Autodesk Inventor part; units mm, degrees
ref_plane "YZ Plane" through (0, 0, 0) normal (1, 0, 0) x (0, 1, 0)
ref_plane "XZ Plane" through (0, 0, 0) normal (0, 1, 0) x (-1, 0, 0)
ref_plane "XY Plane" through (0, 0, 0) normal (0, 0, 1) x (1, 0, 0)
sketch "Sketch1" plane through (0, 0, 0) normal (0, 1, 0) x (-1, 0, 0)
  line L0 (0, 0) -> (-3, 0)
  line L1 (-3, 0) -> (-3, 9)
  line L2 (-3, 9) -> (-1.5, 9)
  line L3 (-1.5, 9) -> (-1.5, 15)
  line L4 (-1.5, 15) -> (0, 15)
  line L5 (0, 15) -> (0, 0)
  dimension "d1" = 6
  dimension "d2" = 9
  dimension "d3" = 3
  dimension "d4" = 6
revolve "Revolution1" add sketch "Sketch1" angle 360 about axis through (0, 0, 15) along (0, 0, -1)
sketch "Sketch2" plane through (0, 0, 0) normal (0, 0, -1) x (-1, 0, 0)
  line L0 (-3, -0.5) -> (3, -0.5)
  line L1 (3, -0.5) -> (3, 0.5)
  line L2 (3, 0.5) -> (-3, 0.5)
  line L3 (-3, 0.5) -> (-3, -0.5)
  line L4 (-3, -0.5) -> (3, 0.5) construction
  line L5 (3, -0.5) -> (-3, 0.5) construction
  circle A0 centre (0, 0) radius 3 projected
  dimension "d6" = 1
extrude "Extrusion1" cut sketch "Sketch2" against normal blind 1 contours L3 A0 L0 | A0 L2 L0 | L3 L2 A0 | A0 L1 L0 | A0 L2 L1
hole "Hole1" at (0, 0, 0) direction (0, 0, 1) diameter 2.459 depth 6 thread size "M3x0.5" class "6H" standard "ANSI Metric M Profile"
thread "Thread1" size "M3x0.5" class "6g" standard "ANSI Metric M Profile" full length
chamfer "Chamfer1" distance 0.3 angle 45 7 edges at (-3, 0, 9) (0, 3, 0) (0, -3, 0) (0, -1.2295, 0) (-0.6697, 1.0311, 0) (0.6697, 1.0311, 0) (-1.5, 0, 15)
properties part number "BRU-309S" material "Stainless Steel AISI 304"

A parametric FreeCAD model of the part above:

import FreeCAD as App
import Part
import Sketcher

V = App.Vector


def edges_at(feature, points):
    """Names of the edges that pass closest to the given points."""
    edges = feature.Shape.Edges
    near = lambda p: min(range(len(edges)), key=lambda i: edges[i].distToShape(Part.Vertex(*p))[0])
    return sorted({f"Edge{near(p) + 1}" for p in points})


def add_polygon(sketch, points):
    """Adds a closed chain of lines whose ends are joined by coincident constraints."""
    first, n = sketch.GeometryCount, len(points)
    for a, b in zip(points, points[1:] + points[:1]):
        sketch.addGeometry(Part.LineSegment(App.Vector(*a, 0), App.Vector(*b, 0)), False)
    for i in range(n):
        sketch.addConstraint(Sketcher.Constraint("Coincident", first + i, 2, first + (i + 1) % n, 1))

doc = App.newDocument("Part")
body = doc.addObject("PartDesign::Body", "Body")

# Sketch on XZ plane
sketch1 = doc.addObject("Sketcher::SketchObject", "Sketch")
body.addObject(sketch1)
sketch1.AttachmentSupport = (doc.XZ_Plane, [""])
sketch1.MapMode = "FlatFace"
add_polygon(sketch1, [(3, 0), (0, 0), (0, 15), (1.5, 15), (1.5, 9), (3, 9)])  # lines 0-5
sketch1.addConstraint([
    Sketcher.Constraint("Horizontal", 0),
    Sketcher.Constraint("Vertical", 1),
    Sketcher.Constraint("Horizontal", 2),
    Sketcher.Constraint("Vertical", 3),
    Sketcher.Constraint("Horizontal", 4),
    Sketcher.Constraint("Vertical", 5),
    Sketcher.Constraint("Coincident", 0, 2, -1, 1),
    Sketcher.Constraint("Equal", 2, 4),
    Sketcher.Constraint("DistanceX", 0, 2, 0, 1, 3.0),
    Sketcher.Constraint("DistanceY", 3, 2, 3, 1, 6.0),
    Sketcher.Constraint("DistanceY", 5, 2, 5, 1, 9.0),
])
revolution = doc.addObject("PartDesign::Revolution", "Revolution")
body.addObject(revolution)
revolution.Profile = sketch1
revolution.ReferenceAxis = (sketch1, ["V_Axis"])
revolution.Angle = 360

# Sketch on XY plane
sketch2 = doc.addObject("Sketcher::SketchObject", "Sketch001")
body.addObject(sketch2)
sketch2.AttachmentSupport = (doc.XY_Plane, [""])
sketch2.MapMode = "FlatFace"
add_polygon(sketch2, [(3, -0.5), (-3, -0.5), (-3, 0.5), (3, 0.5)])  # lines 0-3
sketch2.addConstraint([
    Sketcher.Constraint("Horizontal", 0),
    Sketcher.Constraint("Vertical", 1),
    Sketcher.Constraint("Horizontal", 2),
    Sketcher.Constraint("Vertical", 3),
    Sketcher.Constraint("Symmetric", 0, 2, 2, 2, -1, 1),
    Sketcher.Constraint("DistanceY", 1, 1, 1, 2, 1.0),
    Sketcher.Constraint("DistanceX", 0, 2, 0, 1, 6.0),
])
pocket1 = doc.addObject("PartDesign::Pocket", "Pocket")
body.addObject(pocket1)
pocket1.Profile = sketch2
pocket1.Length = 1
pocket1.Reversed = True

# Sketch on XY plane
sketch3 = doc.addObject("Sketcher::SketchObject", "Sketch002")
body.addObject(sketch3)
sketch3.AttachmentSupport = (doc.XY_Plane, [""])
sketch3.MapMode = "FlatFace"
sketch3.addGeometry(Part.Circle(V(0, 0, 0), V(0, 0, 1), 1.2), False)
sketch3.addConstraint([
    Sketcher.Constraint("Coincident", 0, 3, -1, 1),
    Sketcher.Constraint("Diameter", 0, 2.459),
])
doc.recompute()
hole = doc.addObject("PartDesign::Hole", "Hole")
body.addObject(hole)
hole.Profile = sketch3
hole.ThreadType = "None"
hole.Diameter = 2.459
hole.DepthType = "Dimension"
hole.Depth = 6
hole.DrillPoint = "Flat"
hole.Reversed = True
doc.recompute()

chamfer = doc.addObject("PartDesign::Chamfer", "Chamfer")
body.addObject(chamfer)
chamfer.Base = (hole, edges_at(hole, [
    (-3, 0, 9),
    (0, 3, 0),
    (0, -3, 0),
    (0, -1.23, 0),
    (-0.67, 1.031, 0),
    (0.67, 1.031, 0),
    (-1.5, 0, 15),
]))
chamfer.Size = 0.3

doc.recompute()
